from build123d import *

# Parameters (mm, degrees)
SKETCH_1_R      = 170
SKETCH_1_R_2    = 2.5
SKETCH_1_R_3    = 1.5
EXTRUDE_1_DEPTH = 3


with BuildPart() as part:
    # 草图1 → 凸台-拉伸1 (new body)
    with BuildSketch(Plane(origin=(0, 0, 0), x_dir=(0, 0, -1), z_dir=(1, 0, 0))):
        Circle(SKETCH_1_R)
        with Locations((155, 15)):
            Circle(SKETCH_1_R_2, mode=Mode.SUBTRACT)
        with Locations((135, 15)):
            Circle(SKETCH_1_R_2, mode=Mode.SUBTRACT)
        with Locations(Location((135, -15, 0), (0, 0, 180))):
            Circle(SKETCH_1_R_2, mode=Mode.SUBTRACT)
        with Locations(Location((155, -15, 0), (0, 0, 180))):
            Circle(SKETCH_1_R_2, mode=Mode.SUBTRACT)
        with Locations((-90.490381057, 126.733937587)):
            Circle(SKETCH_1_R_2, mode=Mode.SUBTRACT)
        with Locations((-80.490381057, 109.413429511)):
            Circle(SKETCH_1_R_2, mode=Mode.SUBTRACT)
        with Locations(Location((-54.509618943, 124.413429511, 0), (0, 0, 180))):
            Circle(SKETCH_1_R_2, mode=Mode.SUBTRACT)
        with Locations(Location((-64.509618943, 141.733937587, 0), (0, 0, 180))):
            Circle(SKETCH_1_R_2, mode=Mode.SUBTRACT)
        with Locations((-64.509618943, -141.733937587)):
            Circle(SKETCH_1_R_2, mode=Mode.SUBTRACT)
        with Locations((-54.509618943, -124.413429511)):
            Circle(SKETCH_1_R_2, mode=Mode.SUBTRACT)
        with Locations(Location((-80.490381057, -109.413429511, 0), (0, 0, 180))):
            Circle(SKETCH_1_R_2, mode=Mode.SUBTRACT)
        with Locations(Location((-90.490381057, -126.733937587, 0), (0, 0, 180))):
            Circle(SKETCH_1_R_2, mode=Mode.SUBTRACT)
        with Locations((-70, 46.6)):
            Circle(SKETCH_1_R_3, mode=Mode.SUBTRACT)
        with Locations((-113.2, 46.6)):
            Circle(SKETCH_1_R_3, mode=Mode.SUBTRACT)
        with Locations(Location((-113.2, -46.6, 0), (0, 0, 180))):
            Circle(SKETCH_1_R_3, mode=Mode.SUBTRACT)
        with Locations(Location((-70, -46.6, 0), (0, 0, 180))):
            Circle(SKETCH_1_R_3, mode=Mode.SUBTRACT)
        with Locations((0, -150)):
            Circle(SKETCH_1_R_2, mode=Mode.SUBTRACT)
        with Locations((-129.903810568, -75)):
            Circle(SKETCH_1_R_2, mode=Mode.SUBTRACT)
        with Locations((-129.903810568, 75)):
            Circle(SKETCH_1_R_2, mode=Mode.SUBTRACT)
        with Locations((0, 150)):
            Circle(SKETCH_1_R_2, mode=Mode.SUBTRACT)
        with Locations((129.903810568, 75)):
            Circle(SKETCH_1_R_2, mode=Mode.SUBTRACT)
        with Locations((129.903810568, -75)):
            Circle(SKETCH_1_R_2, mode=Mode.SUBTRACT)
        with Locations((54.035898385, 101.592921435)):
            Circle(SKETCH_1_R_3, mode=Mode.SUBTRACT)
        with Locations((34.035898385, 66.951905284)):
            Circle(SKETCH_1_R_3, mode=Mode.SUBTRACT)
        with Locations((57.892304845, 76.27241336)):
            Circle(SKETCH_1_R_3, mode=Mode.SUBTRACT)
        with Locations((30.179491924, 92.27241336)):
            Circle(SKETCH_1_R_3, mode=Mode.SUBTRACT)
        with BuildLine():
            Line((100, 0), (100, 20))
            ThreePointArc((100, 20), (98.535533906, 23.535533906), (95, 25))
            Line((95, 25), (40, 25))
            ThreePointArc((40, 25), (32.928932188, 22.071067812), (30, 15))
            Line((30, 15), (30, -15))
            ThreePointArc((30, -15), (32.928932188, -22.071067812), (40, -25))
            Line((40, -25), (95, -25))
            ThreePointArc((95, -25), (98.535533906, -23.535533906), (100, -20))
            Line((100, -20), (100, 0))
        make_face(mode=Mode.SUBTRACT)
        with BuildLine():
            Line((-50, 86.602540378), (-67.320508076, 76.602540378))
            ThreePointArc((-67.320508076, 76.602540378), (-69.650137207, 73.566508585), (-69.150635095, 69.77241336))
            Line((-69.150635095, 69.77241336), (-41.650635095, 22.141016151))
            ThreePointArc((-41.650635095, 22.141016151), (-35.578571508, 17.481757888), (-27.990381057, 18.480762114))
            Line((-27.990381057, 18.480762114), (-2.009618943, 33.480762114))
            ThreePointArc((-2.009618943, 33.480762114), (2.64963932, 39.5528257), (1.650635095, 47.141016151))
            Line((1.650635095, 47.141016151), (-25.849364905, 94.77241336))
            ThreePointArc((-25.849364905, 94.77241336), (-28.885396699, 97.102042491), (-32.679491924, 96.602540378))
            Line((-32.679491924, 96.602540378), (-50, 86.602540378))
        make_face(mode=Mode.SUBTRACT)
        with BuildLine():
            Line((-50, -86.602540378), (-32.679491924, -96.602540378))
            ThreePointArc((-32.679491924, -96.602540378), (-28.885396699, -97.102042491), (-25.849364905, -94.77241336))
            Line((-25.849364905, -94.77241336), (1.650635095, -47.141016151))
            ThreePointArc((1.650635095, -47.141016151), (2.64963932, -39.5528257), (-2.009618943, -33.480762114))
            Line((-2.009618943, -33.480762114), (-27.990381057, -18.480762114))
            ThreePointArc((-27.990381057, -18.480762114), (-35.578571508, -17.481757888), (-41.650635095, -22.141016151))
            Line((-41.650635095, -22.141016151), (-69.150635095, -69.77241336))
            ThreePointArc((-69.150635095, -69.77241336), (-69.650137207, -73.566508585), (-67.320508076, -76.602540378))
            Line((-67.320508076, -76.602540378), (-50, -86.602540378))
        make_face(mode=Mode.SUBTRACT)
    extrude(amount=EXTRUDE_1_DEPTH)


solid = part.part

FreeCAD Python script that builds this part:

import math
import FreeCAD as App
import Part
import Sketcher
Q = App.Units.Quantity

doc = App.newDocument("Part")
body = doc.addObject("PartDesign::Body", "Body")

# Sketch on YZ plane
sketch1 = doc.addObject("Sketcher::SketchObject", "Sketch")
body.addObject(sketch1)
sketch1.AttachmentSupport = (doc.YZ_Plane, [""])
sketch1.MapMode = "FlatFace"
sketch1.addGeometry(Part.Circle(App.Vector(0, 0, 0), App.Vector(0, 0, 1), 170), False)
sketch1.addGeometry(Part.Circle(App.Vector(-141.7, 64.5, 0), App.Vector(0, 0, 1), 2.5), False)
sketch1.addGeometry(Part.Circle(App.Vector(-126.7, 90.5, 0), App.Vector(0, 0, 1), 2.5), False)
sketch1.addGeometry(Part.Circle(App.Vector(-109.4, 80.5, 0), App.Vector(0, 0, 1), 2.5), False)
sketch1.addGeometry(Part.Circle(App.Vector(-124.4, 54.5, 0), App.Vector(0, 0, 1), 2.5), False)
sketch1.addGeometry(Part.Circle(App.Vector(-150, 0, 0), App.Vector(0, 0, 1), 2.5), False)
sketch1.addGeometry(Part.Circle(App.Vector(-75, 129.9, 0), App.Vector(0, 0, 1), 2.5), False)
sketch1.addGeometry(Part.Circle(App.Vector(-46.6, 113.2, 0), App.Vector(0, 0, 1), 1.5), False)
sketch1.addGeometry(Part.Circle(App.Vector(-46.6, 70, 0), App.Vector(0, 0, 1), 1.5), False)
sketch1.addGeometry(Part.ArcOfCircle(Part.Circle(App.Vector(-92.3, 30.2, 0), App.Vector(0, 0, 1), 5), math.radians(150), math.radians(240)), False)
sketch1.addGeometry(Part.LineSegment(App.Vector(-96.6, 32.7, 0), App.Vector(-76.6, 67.3, 0)), False)
sketch1.addGeometry(Part.ArcOfCircle(Part.Circle(App.Vector(-72.3, 64.8, 0), App.Vector(0, 0, 1), 5), math.radians(60), math.radians(150)), False)
sketch1.addGeometry(Part.LineSegment(App.Vector(-69.8, 69.2, 0), App.Vector(-22.1, 41.7, 0)), False)
sketch1.addGeometry(Part.ArcOfCircle(Part.Circle(App.Vector(-27.1, 33, 0), App.Vector(0, 0, 1), 10), math.radians(-30), math.radians(60)), False)
sketch1.addGeometry(Part.LineSegment(App.Vector(-18.5, 28, 0), App.Vector(-33.5, 2, 0)), False)
sketch1.addGeometry(Part.ArcOfCircle(Part.Circle(App.Vector(-42.1, 7, 0), App.Vector(0, 0, 1), 10), math.radians(-120), math.radians(-30)), False)
sketch1.addGeometry(Part.LineSegment(App.Vector(-47.1, -1.7, 0), App.Vector(-94.8, 25.8, 0)), False)
sketch1.addGeometry(Part.Circle(App.Vector(-75, -129.9, 0), App.Vector(0, 0, 1), 2.5), False)
sketch1.addGeometry(Part.Circle(App.Vector(-15, -135, 0), App.Vector(0, 0, 1), 2.5), False)
sketch1.addGeometry(Part.Circle(App.Vector(-15, -155, 0), App.Vector(0, 0, 1), 2.5), False)
sketch1.addGeometry(Part.Circle(App.Vector(46.6, 113.2, 0), App.Vector(0, 0, 1), 1.5), False)
sketch1.addGeometry(Part.Circle(App.Vector(75, 129.9, 0), App.Vector(0, 0, 1), 2.5), False)
sketch1.addGeometry(Part.Circle(App.Vector(46.6, 70, 0), App.Vector(0, 0, 1), 1.5), False)
sketch1.addGeometry(Part.ArcOfCircle(Part.Circle(App.Vector(72.3, 64.8, 0), App.Vector(0, 0, 1), 5), math.radians(30), math.radians(120)), False)
sketch1.addGeometry(Part.LineSegment(App.Vector(76.6, 67.3, 0), App.Vector(96.6, 32.7, 0)), False)
sketch1.addGeometry(Part.ArcOfCircle(Part.Circle(App.Vector(92.3, 30.2, 0), App.Vector(0, 0, 1), 5), math.radians(-60), math.radians(30)), False)
sketch1.addGeometry(Part.LineSegment(App.Vector(94.8, 25.8, 0), App.Vector(47.1, -1.7, 0)), False)
sketch1.addGeometry(Part.ArcOfCircle(Part.Circle(App.Vector(42.1, 7, 0), App.Vector(0, 0, 1), 10), math.radians(-150), math.radians(-60)), False)
sketch1.addGeometry(Part.LineSegment(App.Vector(33.5, 2, 0), App.Vector(18.5, 28, 0)), False)
sketch1.addGeometry(Part.ArcOfCircle(Part.Circle(App.Vector(27.1, 33, 0), App.Vector(0, 0, 1), 10), math.radians(120), math.radians(210)), False)
sketch1.addGeometry(Part.LineSegment(App.Vector(22.1, 41.7, 0), App.Vector(69.8, 69.2, 0)), False)
sketch1.addGeometry(Part.Circle(App.Vector(109.4, 80.5, 0), App.Vector(0, 0, 1), 2.5), False)
sketch1.addGeometry(Part.Circle(App.Vector(126.7, 90.5, 0), App.Vector(0, 0, 1), 2.5), False)
sketch1.addGeometry(Part.Circle(App.Vector(141.7, 64.5, 0), App.Vector(0, 0, 1), 2.5), False)
sketch1.addGeometry(Part.Circle(App.Vector(124.4, 54.5, 0), App.Vector(0, 0, 1), 2.5), False)
sketch1.addGeometry(Part.Circle(App.Vector(150, 0, 0), App.Vector(0, 0, 1), 2.5), False)
sketch1.addGeometry(Part.ArcOfCircle(Part.Circle(App.Vector(20, -95, 0), App.Vector(0, 0, 1), 5), math.radians(-90), math.radians(0)), False)
sketch1.addGeometry(Part.LineSegment(App.Vector(20, -100, 0), App.Vector(-20, -100, 0)), False)
sketch1.addGeometry(Part.ArcOfCircle(Part.Circle(App.Vector(-20, -95, 0), App.Vector(0, 0, 1), 5), math.radians(180), math.radians(270)), False)
sketch1.addGeometry(Part.LineSegment(App.Vector(-25, -95, 0), App.Vector(-25, -40, 0)), False)
sketch1.addGeometry(Part.ArcOfCircle(Part.Circle(App.Vector(-15, -40, 0), App.Vector(0, 0, 1), 10), math.radians(90), math.radians(180)), False)
sketch1.addGeometry(Part.LineSegment(App.Vector(-15, -30, 0), App.Vector(15, -30, 0)), False)
sketch1.addGeometry(Part.ArcOfCircle(Part.Circle(App.Vector(15, -40, 0), App.Vector(0, 0, 1), 10), math.radians(0), math.radians(90)), False)
sketch1.addGeometry(Part.LineSegment(App.Vector(25, -40, 0), App.Vector(25, -95, 0)), False)
sketch1.addGeometry(Part.Circle(App.Vector(67, -34, 0), App.Vector(0, 0, 1), 1.5), False)
sketch1.addGeometry(Part.Circle(App.Vector(15, -135, 0), App.Vector(0, 0, 1), 2.5), False)
sketch1.addGeometry(Part.Circle(App.Vector(15, -155, 0), App.Vector(0, 0, 1), 2.5), False)
sketch1.addGeometry(Part.Circle(App.Vector(75, -129.9, 0), App.Vector(0, 0, 1), 2.5), False)
sketch1.addGeometry(Part.Circle(App.Vector(92.3, -30.2, 0), App.Vector(0, 0, 1), 1.5), False)
sketch1.addGeometry(Part.Circle(App.Vector(76.3, -57.9, 0), App.Vector(0, 0, 1), 1.5), False)
sketch1.addGeometry(Part.Circle(App.Vector(101.6, -54, 0), App.Vector(0, 0, 1), 1.5), False)
sketch1.addConstraint(Sketcher.Constraint("Tangent", 9, 1, 10, 1))
sketch1.addConstraint(Sketcher.Constraint("Tangent", 10, 2, 11, 2))
sketch1.addConstraint(Sketcher.Constraint("Tangent", 11, 1, 12, 1))
sketch1.addConstraint(Sketcher.Constraint("Tangent", 12, 2, 13, 2))
sketch1.addConstraint(Sketcher.Constraint("Tangent", 13, 1, 14, 1))
sketch1.addConstraint(Sketcher.Constraint("Tangent", 14, 2, 15, 2))
sketch1.addConstraint(Sketcher.Constraint("Tangent", 15, 1, 16, 1))
sketch1.addConstraint(Sketcher.Constraint("Tangent", 16, 2, 9, 2))
sketch1.addConstraint(Sketcher.Constraint("Tangent", 23, 1, 24, 1))
sketch1.addConstraint(Sketcher.Constraint("Tangent", 24, 2, 25, 2))
sketch1.addConstraint(Sketcher.Constraint("Tangent", 25, 1, 26, 1))
sketch1.addConstraint(Sketcher.Constraint("Tangent", 26, 2, 27, 2))
sketch1.addConstraint(Sketcher.Constraint("Tangent", 27, 1, 28, 1))
sketch1.addConstraint(Sketcher.Constraint("Tangent", 28, 2, 29, 2))
sketch1.addConstraint(Sketcher.Constraint("Tangent", 29, 1, 30, 1))
sketch1.addConstraint(Sketcher.Constraint("Tangent", 30, 2, 23, 2))
sketch1.addConstraint(Sketcher.Constraint("Tangent", 36, 1, 37, 1))
sketch1.addConstraint(Sketcher.Constraint("Tangent", 37, 2, 38, 2))
sketch1.addConstraint(Sketcher.Constraint("Tangent", 38, 1, 39, 1))
sketch1.addConstraint(Sketcher.Constraint("Tangent", 39, 2, 40, 2))
sketch1.addConstraint(Sketcher.Constraint("Tangent", 40, 1, 41, 1))
sketch1.addConstraint(Sketcher.Constraint("Tangent", 41, 2, 42, 2))
sketch1.addConstraint(Sketcher.Constraint("Tangent", 42, 1, 43, 1))
sketch1.addConstraint(Sketcher.Constraint("Tangent", 43, 2, 36, 2))
sketch1.addConstraint(Sketcher.Constraint("Horizontal", 37))
sketch1.addConstraint(Sketcher.Constraint("Vertical", 39))
sketch1.addConstraint(Sketcher.Constraint("Horizontal", 41))
sketch1.addConstraint(Sketcher.Constraint("Vertical", 43))
sketch1.addConstraint(Sketcher.Constraint("Coincident", 0, 3, -1, 1))
sketch1.addConstraint(Sketcher.Constraint("Equal", 1, 2))
sketch1.addConstraint(Sketcher.Constraint("Equal", 2, 3))
sketch1.addConstraint(Sketcher.Constraint("Equal", 3, 4))
sketch1.addConstraint(Sketcher.Constraint("Equal", 4, 5))
sketch1.addConstraint(Sketcher.Constraint("Equal", 5, 6))
sketch1.addConstraint(Sketcher.Constraint("Equal", 7, 8))
sketch1.addConstraint(Sketcher.Constraint("Equal", 9, 11))
sketch1.addConstraint(Sketcher.Constraint("Equal", 13, 15))
sketch1.addConstraint(Sketcher.Constraint("Equal", 6, 17))
sketch1.addConstraint(Sketcher.Constraint("Equal", 17, 18))
sketch1.addConstraint(Sketcher.Constraint("Equal", 18, 19))
sketch1.addConstraint(Sketcher.Constraint("Equal", 8, 20))
sketch1.addConstraint(Sketcher.Constraint("Equal", 19, 21))
sketch1.addConstraint(Sketcher.Constraint("Equal", 20, 22))
sketch1.addConstraint(Sketcher.Constraint("Equal", 11, 23))
sketch1.addConstraint(Sketcher.Constraint("Equal", 23, 25))
sketch1.addConstraint(Sketcher.Constraint("Equal", 15, 27))
sketch1.addConstraint(Sketcher.Constraint("Equal", 27, 29))
sketch1.addConstraint(Sketcher.Constraint("Equal", 21, 31))
sketch1.addConstraint(Sketcher.Constraint("Equal", 31, 32))
sketch1.addConstraint(Sketcher.Constraint("Equal", 32, 33))
sketch1.addConstraint(Sketcher.Constraint("Equal", 33, 34))
sketch1.addConstraint(Sketcher.Constraint("Equal", 34, 35))
sketch1.addConstraint(Sketcher.Constraint("Equal", 25, 36))
sketch1.addConstraint(Sketcher.Constraint("Equal", 36, 38))
sketch1.addConstraint(Sketcher.Constraint("Equal", 29, 40))
sketch1.addConstraint(Sketcher.Constraint("Equal", 40, 42))
sketch1.addConstraint(Sketcher.Constraint("Equal", 22, 44))
sketch1.addConstraint(Sketcher.Constraint("Equal", 35, 45))
sketch1.addConstraint(Sketcher.Constraint("Equal", 45, 46))
sketch1.addConstraint(Sketcher.Constraint("Equal", 46, 47))
sketch1.addConstraint(Sketcher.Constraint("Equal", 44, 48))
sketch1.addConstraint(Sketcher.Constraint("Equal", 48, 49))
sketch1.addConstraint(Sketcher.Constraint("Equal", 49, 50))
sketch1.addConstraint(Sketcher.Constraint("Symmetric", 17, 3, 21, 3, -1, 1))
sketch1.addConstraint(Sketcher.Constraint("Symmetric", 5, 3, 35, 3, -1, 1))
sketch1.addConstraint(Sketcher.Constraint("Symmetric", 6, 3, 47, 3, -1, 1))
sketch1.addConstraint(Sketcher.Constraint("Symmetric", 9, 3, 48, 3, -1, 1))
sketch1.addConstraint(Sketcher.Constraint("Symmetric", 7, 3, 20, 3, -2))
sketch1.addConstraint(Sketcher.Constraint("Symmetric", 6, 3, 21, 3, -2))
sketch1.addConstraint(Sketcher.Constraint("Symmetric", 8, 3, 22, 3, -2))
sketch1.addConstraint(Sketcher.Constraint("Symmetric", 11, 3, 23, 3, -2))
sketch1.addConstraint(Sketcher.Constraint("Symmetric", 9, 3, 25, 3, -2))
sketch1.addConstraint(Sketcher.Constraint("Symmetric", 15, 3, 27, 3, -2))
sketch1.addConstraint(Sketcher.Constraint("Symmetric", 13, 3, 29, 3, -2))
sketch1.addConstraint(Sketcher.Constraint("Symmetric", 3, 3, 31, 3, -2))
sketch1.addConstraint(Sketcher.Constraint("Symmetric", 2, 3, 32, 3, -2))
sketch1.addConstraint(Sketcher.Constraint("Symmetric", 1, 3, 33, 3, -2))
sketch1.addConstraint(Sketcher.Constraint("Symmetric", 4, 3, 34, 3, -2))
sketch1.addConstraint(Sketcher.Constraint("Symmetric", 18, 3, 45, 3, -2))
sketch1.addConstraint(Sketcher.Constraint("Symmetric", 19, 3, 46, 3, -2))
sketch1.addConstraint(Sketcher.Constraint("PointOnObject", 5, 3, -1))
sketch1.addConstraint(Sketcher.Constraint("Perpendicular", 10, 12))
sketch1.addConstraint(Sketcher.Constraint("Perpendicular", 12, 14))
sketch1.addConstraint(Sketcher.Constraint("Perpendicular", 14, 16))
sketch1.addConstraint(Sketcher.Constraint("Vertical", 7, 3, 8, 3))
sketch1.addConstraint(Sketcher.Constraint("Vertical", 18, 3, 19, 3))
sketch1.addConstraint(Sketcher.Constraint("Vertical", 19, 3, 40, 3))
sketch1.addConstraint(Sketcher.Constraint("Vertical", 42, 3, 45, 3))
sketch1.addConstraint(Sketcher.Constraint("Diameter", 0, Q("340 mm")))
sketch1.addConstraint(Sketcher.Constraint("Diameter", 1, Q("5 mm")))
sketch1.addConstraint(Sketcher.Constraint("Diameter", 7, Q("3 mm")))
sketch1.addConstraint(Sketcher.Constraint("Radius", 9, Q("5 mm")))
sketch1.addConstraint(Sketcher.Constraint("Radius", 13, Q("10 mm")))
sketch1.addConstraint(Sketcher.Constraint("DistanceX", 37, 2, 37, 1, Q("40 mm")))
sketch1.addConstraint(Sketcher.Constraint("DistanceY", 39, 1, 39, 2, Q("55 mm")))
sketch1.addConstraint(Sketcher.Constraint("Angle", 10, Q("60 deg")))
sketch1.addConstraint(Sketcher.Constraint("Distance", 10, Q("40 mm")))
sketch1.addConstraint(Sketcher.Constraint("Distance", 12, Q("55 mm")))
sketch1.addConstraint(Sketcher.Constraint("DistanceX", 5, 3, -1, 1, Q("150 mm")))
sketch1.addConstraint(Sketcher.Constraint("DistanceX", 6, 3, -1, 1, Q("75 mm")))
sketch1.addConstraint(Sketcher.Constraint("DistanceY", -1, 1, 8, 3, Q("70 mm")))
sketch1.addConstraint(Sketcher.Constraint("DistanceY", 18, 3, -1, 1, Q("135 mm")))
sketch1.addConstraint(Sketcher.Constraint("DistanceY", 19, 3, -1, 1, Q("155 mm")))
sketch1.addConstraint(Sketcher.Constraint("DistanceY", 36, 3, -1, 1, Q("95 mm")))
sketch1.addConstraint(Sketcher.Constraint("DistanceX", 7, 3, -1, 1, Q("46.6 mm")))
sketch1.addConstraint(Sketcher.Constraint("DistanceY", -1, 1, 7, 3, Q("113.2 mm")))
sketch1.addConstraint(Sketcher.Constraint("DistanceY", 44, 3, -1, 1, Q("34.035898 mm")))
sketch1.addConstraint(Sketcher.Constraint("DistanceY", 50, 3, -1, 1, Q("54.035898 mm")))
sketch1.addConstraint(Sketcher.Constraint("DistanceY", -1, 1, 1, 3, Q("64.509619 mm")))
sketch1.addConstraint(Sketcher.Constraint("DistanceY", -1, 1, 2, 3, Q("90.490381 mm")))
sketch1.addConstraint(Sketcher.Constraint("DistanceX", 3, 3, -1, 1, Q("109.41343 mm")))
sketch1.addConstraint(Sketcher.Constraint("DistanceY", -1, 1, 3, 3, Q("80.490381 mm")))
sketch1.addConstraint(Sketcher.Constraint("DistanceX", 4, 3, -1, 1, Q("124.41343 mm")))
sketch1.addConstraint(Sketcher.Constraint("DistanceY", -1, 1, 4, 3, Q("54.509619 mm")))
sketch1.addConstraint(Sketcher.Constraint("DistanceY", -1, 1, 6, 3, Q("129.903811 mm")))
sketch1.addConstraint(Sketcher.Constraint("DistanceY", -1, 1, 9, 3, Q("30.179492 mm")))
sketch1.addConstraint(Sketcher.Constraint("DistanceX", -1, 1, 50, 3, Q("101.592921 mm")))
sketch1.addConstraint(Sketcher.Constraint("DistanceX", 9, 1, -1, 1, Q("96.60254 mm")))
sketch1.addConstraint(Sketcher.Constraint("DistanceX", 1, 3, -1, 1, Q("141.733938 mm")))
sketch1.addConstraint(Sketcher.Constraint("DistanceX", 2, 3, -1, 1, Q("126.733938 mm")))
sketch1.addConstraint(Sketcher.Constraint("DistanceX", -1, 1, 44, 3, Q("66.951905 mm")))
sketch1.addConstraint(Sketcher.Constraint("DistanceX", -1, 1, 49, 3, Q("76.272413 mm")))
sketch1.addConstraint(Sketcher.Constraint("DistanceY", 49, 3, -1, 1, Q("57.892305 mm")))
pad1 = doc.addObject("PartDesign::Pad", "Pad")
body.addObject(pad1)
pad1.Profile = sketch1
pad1.Length = 3

doc.recompute()
